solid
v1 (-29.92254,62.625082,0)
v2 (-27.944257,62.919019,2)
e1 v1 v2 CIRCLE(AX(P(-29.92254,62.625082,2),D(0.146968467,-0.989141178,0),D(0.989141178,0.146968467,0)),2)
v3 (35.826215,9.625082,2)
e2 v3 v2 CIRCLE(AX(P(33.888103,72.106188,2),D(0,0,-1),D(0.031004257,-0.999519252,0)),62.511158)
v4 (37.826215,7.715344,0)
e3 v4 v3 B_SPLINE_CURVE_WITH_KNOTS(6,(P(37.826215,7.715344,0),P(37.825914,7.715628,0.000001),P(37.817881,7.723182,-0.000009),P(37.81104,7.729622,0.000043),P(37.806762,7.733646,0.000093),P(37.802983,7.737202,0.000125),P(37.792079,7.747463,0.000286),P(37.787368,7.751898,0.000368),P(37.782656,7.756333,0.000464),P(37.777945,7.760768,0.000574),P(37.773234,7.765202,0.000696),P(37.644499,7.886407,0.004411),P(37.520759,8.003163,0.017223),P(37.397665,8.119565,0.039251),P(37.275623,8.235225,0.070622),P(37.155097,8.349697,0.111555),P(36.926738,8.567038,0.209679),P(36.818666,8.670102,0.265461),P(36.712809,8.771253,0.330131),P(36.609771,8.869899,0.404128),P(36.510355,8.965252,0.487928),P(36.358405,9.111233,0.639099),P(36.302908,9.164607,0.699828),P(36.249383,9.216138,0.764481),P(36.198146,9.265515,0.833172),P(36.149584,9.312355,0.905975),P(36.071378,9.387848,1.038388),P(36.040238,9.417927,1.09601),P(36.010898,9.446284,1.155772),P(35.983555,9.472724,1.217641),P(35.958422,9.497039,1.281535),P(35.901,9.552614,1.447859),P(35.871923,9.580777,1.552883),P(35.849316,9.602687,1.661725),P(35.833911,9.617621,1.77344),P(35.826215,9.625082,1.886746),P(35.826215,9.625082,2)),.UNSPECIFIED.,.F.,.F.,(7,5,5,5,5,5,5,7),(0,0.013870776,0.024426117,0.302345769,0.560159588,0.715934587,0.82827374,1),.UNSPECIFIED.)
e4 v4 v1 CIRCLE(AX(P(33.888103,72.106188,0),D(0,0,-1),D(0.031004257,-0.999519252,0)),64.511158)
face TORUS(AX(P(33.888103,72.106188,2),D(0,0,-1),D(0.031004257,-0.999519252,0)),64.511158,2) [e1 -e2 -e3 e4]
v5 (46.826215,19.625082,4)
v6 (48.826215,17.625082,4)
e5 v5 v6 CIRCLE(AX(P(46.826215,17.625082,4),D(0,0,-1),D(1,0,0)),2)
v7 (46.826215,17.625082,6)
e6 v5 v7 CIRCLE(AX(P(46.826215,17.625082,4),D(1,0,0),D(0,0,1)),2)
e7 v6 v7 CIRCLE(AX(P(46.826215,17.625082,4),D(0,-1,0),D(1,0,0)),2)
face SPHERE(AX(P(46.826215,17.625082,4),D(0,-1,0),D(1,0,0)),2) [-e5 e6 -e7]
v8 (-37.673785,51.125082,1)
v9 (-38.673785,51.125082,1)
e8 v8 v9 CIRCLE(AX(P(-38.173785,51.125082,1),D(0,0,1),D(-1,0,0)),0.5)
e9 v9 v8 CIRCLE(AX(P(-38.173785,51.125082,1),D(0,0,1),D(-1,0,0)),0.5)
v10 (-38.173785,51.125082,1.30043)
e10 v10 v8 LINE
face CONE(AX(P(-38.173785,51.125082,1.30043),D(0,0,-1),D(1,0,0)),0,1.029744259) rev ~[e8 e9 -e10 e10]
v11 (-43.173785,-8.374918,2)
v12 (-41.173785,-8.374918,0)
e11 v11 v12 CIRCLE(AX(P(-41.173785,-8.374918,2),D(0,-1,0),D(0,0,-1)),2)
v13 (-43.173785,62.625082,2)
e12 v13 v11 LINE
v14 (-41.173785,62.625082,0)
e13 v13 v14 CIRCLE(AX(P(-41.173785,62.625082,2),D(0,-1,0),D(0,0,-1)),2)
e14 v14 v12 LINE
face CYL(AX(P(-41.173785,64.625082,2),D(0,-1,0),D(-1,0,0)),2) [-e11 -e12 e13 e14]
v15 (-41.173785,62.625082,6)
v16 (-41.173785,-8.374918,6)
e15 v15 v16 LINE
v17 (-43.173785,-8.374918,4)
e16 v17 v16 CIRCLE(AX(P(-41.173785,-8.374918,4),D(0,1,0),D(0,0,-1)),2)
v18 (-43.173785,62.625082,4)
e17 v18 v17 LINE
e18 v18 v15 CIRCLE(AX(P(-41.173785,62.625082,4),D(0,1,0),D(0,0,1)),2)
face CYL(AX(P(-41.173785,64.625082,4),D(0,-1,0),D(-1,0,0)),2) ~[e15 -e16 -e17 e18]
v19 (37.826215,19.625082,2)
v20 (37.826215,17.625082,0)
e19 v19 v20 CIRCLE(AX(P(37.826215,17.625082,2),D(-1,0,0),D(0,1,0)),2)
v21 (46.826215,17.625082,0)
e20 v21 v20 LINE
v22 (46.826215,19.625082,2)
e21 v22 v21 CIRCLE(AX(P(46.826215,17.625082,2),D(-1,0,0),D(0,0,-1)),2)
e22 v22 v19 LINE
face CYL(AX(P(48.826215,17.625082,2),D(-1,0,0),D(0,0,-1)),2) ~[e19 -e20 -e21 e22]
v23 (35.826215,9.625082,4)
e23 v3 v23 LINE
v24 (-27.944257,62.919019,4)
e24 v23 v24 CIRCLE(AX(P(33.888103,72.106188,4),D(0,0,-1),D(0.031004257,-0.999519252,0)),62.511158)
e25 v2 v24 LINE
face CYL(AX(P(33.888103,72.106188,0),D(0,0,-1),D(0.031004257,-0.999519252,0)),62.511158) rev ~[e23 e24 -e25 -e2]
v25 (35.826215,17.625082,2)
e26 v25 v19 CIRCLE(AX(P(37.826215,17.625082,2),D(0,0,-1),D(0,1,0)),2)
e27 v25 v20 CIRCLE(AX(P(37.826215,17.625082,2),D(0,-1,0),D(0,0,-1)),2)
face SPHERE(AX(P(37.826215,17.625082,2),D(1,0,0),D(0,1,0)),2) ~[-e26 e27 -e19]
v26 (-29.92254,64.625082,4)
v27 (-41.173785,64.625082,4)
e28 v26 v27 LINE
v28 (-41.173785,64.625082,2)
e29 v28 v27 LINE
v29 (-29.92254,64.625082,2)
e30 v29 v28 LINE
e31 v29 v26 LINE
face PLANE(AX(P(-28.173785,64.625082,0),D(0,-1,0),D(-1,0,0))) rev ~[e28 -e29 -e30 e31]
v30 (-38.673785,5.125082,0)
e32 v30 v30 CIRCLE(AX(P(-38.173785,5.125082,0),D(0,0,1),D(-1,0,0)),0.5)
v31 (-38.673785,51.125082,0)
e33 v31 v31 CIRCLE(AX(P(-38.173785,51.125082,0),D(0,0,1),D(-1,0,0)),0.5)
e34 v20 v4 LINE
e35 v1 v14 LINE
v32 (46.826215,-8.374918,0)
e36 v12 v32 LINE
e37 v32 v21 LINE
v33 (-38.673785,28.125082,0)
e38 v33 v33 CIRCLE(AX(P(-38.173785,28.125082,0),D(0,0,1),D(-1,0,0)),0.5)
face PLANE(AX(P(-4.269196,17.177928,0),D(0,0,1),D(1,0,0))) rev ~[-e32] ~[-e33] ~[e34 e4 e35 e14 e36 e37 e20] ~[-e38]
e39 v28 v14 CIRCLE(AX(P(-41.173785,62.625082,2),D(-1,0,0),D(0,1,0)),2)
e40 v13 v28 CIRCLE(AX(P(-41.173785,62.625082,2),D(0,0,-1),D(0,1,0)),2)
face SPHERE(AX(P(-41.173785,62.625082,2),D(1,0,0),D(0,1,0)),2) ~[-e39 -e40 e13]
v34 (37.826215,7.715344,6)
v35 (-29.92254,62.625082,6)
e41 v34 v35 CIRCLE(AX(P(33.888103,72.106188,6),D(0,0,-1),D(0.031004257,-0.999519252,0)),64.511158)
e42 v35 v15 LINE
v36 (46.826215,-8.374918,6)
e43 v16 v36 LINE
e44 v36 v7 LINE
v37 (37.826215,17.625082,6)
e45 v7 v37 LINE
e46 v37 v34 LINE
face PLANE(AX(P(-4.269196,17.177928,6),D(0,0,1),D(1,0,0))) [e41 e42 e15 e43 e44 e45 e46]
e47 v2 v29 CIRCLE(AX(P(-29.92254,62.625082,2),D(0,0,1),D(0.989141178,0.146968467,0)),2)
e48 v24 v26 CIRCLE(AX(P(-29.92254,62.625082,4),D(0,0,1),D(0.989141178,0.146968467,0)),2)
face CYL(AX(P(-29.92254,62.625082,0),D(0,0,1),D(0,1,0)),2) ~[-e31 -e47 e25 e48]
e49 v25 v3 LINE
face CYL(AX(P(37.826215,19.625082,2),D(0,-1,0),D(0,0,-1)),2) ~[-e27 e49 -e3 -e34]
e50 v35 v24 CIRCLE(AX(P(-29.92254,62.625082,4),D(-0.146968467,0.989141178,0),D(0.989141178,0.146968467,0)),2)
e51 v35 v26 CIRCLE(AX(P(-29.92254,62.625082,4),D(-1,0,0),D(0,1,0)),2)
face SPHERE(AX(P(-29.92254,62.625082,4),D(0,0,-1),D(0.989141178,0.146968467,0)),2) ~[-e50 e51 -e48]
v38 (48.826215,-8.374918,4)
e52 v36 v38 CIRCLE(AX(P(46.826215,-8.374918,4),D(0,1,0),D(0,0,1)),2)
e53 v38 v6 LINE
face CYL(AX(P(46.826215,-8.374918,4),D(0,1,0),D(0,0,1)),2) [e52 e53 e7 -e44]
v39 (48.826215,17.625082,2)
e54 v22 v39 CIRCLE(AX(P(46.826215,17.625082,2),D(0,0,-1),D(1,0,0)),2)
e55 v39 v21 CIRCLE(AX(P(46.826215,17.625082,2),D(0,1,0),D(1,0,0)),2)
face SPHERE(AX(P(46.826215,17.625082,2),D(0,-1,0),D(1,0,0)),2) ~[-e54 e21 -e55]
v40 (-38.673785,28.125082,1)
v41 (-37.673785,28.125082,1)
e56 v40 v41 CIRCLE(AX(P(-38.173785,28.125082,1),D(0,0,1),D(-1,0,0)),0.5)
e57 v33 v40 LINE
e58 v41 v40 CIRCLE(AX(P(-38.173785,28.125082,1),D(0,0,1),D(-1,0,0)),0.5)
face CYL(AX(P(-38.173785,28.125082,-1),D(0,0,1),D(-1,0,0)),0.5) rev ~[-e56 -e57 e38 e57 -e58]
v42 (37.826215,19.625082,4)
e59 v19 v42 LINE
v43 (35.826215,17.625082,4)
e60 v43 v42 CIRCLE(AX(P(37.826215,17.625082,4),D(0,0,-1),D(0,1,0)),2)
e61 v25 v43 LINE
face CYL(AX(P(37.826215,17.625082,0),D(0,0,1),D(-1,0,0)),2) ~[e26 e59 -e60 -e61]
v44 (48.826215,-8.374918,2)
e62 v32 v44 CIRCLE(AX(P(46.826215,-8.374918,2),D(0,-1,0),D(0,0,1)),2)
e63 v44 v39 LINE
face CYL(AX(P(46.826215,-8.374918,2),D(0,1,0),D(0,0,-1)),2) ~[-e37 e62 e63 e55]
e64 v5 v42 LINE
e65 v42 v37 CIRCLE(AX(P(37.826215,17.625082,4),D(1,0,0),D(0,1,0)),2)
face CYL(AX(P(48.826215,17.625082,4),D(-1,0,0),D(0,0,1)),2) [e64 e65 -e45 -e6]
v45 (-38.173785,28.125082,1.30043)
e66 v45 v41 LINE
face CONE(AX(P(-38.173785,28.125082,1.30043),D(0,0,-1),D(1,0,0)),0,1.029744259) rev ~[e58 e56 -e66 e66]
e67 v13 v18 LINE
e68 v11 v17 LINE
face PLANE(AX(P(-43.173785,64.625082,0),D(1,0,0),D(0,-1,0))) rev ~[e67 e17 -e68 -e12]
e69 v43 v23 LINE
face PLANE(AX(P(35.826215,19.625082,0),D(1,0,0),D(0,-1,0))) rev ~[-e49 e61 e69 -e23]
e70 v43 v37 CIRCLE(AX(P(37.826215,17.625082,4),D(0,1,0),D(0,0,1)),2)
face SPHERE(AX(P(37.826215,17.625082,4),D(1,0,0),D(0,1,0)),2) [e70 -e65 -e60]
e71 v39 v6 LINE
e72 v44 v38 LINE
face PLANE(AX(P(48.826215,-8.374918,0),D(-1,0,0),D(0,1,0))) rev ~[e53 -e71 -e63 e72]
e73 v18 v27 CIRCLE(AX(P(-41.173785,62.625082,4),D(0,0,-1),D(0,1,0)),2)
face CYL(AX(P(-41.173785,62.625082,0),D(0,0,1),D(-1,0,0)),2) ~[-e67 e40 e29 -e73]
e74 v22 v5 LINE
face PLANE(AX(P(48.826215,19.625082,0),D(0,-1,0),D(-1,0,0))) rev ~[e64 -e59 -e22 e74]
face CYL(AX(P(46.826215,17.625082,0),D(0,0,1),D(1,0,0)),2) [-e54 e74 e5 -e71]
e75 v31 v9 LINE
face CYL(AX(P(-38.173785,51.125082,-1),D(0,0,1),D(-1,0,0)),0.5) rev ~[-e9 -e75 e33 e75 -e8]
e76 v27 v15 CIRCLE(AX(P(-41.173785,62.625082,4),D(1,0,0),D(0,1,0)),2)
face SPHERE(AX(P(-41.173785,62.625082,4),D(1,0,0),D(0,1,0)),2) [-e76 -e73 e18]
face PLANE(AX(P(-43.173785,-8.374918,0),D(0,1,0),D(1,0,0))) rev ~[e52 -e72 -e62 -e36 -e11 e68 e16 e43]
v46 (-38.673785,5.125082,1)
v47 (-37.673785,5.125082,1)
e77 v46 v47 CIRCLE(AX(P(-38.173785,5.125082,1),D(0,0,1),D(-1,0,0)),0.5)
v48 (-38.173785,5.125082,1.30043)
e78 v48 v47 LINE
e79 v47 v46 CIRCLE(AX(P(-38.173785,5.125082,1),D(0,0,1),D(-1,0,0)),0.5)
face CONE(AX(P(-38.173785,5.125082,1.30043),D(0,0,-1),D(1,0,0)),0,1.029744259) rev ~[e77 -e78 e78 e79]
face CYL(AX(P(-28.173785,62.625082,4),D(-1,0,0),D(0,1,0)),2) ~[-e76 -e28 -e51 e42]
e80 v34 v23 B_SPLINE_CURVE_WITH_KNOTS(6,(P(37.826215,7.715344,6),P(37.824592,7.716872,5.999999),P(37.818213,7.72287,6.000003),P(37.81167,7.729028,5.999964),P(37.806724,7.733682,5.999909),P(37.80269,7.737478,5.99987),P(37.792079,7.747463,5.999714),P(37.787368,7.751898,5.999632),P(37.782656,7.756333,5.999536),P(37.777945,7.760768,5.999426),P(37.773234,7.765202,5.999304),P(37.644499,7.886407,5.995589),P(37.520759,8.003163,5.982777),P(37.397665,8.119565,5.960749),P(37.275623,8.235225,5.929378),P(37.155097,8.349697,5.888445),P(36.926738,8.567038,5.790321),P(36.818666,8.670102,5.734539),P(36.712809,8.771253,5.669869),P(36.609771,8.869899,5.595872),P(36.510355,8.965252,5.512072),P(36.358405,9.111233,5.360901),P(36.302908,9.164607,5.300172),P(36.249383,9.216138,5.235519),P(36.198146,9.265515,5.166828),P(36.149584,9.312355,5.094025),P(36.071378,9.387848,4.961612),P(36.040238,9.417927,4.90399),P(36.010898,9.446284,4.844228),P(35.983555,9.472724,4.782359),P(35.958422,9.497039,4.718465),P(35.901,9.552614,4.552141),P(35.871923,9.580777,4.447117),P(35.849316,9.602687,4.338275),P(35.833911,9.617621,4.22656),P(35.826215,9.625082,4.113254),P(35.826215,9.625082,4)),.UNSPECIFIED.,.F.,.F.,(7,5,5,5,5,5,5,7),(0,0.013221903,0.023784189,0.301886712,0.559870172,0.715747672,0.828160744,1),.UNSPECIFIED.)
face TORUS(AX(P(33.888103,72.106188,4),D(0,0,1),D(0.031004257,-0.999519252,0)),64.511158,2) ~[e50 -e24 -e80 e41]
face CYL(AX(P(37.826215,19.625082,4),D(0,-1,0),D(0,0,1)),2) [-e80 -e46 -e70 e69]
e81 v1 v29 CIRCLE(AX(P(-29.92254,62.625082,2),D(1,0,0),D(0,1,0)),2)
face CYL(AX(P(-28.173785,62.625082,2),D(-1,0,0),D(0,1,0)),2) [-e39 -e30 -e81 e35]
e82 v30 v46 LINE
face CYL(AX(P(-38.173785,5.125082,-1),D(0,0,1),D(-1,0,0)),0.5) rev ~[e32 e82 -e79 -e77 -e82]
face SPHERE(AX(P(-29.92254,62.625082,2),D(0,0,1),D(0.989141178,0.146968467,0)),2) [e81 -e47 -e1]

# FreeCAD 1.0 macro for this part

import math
import FreeCAD as App
import Part
import Sketcher
Q = App.Units.Quantity


def edges_at(feature, points):
    """Names of the edges that pass closest to the given points."""
    edges = feature.Shape.Edges
    near = lambda p: min(range(len(edges)), key=lambda i: edges[i].distToShape(Part.Vertex(*p))[0])
    return sorted({f"Edge{near(p) + 1}" for p in points})

doc = App.newDocument("Part")
body = doc.addObject("PartDesign::Body", "Body")

# Sketch on XY plane
sketch1 = body.newObject("Sketcher::SketchObject", "Sketch")
sketch1.AttachmentSupport = (doc.getObject("XY_Plane"), [""])
sketch1.MapMode = "FlatFace"
sketch1.addGeometry([
    Part.LineSegment(App.Vector(-43, 65, 0), App.Vector(-43, -8, 0)),  # 0
    Part.LineSegment(App.Vector(-43, -8, 0), App.Vector(49, -8, 0)),  # 1
    Part.LineSegment(App.Vector(49, -8, 0), App.Vector(49, 20, 0)),  # 2
    Part.LineSegment(App.Vector(49, 20, 0), App.Vector(36, 20, 0)),  # 3
    Part.LineSegment(App.Vector(36, 20, 0), App.Vector(36, 10, 0)),  # 4
    Part.ArcOfCircle(Part.Circle(App.Vector(34, 72, 0), App.Vector(0, 0, 1), 63), math.radians(-173), math.radians(-88)),  # 5
    Part.LineSegment(App.Vector(-28, 65, 0), App.Vector(-43, 65, 0)),  # 6
], False)
sketch1.addConstraint([
    Sketcher.Constraint("Coincident", 0, 2, 1, 1),
    Sketcher.Constraint("Coincident", 1, 2, 2, 1),
    Sketcher.Constraint("Coincident", 2, 2, 3, 1),
    Sketcher.Constraint("Coincident", 3, 2, 4, 1),
    Sketcher.Constraint("Coincident", 4, 2, 5, 2),
    Sketcher.Constraint("Coincident", 5, 1, 6, 1),
    Sketcher.Constraint("Coincident", 6, 2, 0, 1),
    Sketcher.Constraint("Vertical", 0),
    Sketcher.Constraint("Horizontal", 1),
    Sketcher.Constraint("Vertical", 2),
    Sketcher.Constraint("Horizontal", 3),
    Sketcher.Constraint("Vertical", 4),
    Sketcher.Constraint("Horizontal", 6),
    Sketcher.Constraint("DistanceX", 1, 1, 1, 2, Q("92 mm")),
    Sketcher.Constraint("DistanceX", 3, 2, 3, 1, Q("13 mm")),
    Sketcher.Constraint("DistanceX", 6, 2, 6, 1, Q("15 mm")),
    Sketcher.Constraint("DistanceY", 0, 2, 0, 1, Q("73 mm")),
    Sketcher.Constraint("DistanceY", 2, 1, 2, 2, Q("28 mm")),
    Sketcher.Constraint("DistanceY", 4, 2, 4, 1, Q("10 mm")),
    Sketcher.Constraint("Radius", 5, Q("62.511158 mm")),
    Sketcher.Constraint("DistanceY", 0, 2, -1, 1, Q("8.374918 mm")),
    Sketcher.Constraint("DistanceX", -1, 1, 5, 3, Q("33.888103 mm")),
])
pad1 = body.newObject("PartDesign::Pad", "Pad")
pad1.Profile = sketch1
pad1.Length = 6

# Sketch on XY plane
sketch2 = body.newObject("Sketcher::SketchObject", "Sketch001")
sketch2.AttachmentSupport = (doc.getObject("XY_Plane"), [""])
sketch2.MapMode = "FlatFace"
sketch2.addGeometry([
    Part.Circle(App.Vector(-38.2, 5.1, 0), App.Vector(0, 0, 1), 0.5),
    Part.Circle(App.Vector(-38.2, 28.1, 0), App.Vector(0, 0, 1), 0.5),
    Part.Circle(App.Vector(-38.2, 51.1, 0), App.Vector(0, 0, 1), 0.5),
], False)
sketch2.addConstraint([
    Sketcher.Constraint("Equal", 0, 1),
    Sketcher.Constraint("Equal", 1, 2),
    Sketcher.Constraint("Vertical", 0, 3, 1, 3),
    Sketcher.Constraint("Vertical", 1, 3, 2, 3),
    Sketcher.Constraint("Diameter", 0, Q("1 mm")),
    Sketcher.Constraint("DistanceY", 0, 3, 1, 3, Q("23 mm")),
    Sketcher.Constraint("DistanceY", 1, 3, 2, 3, Q("23 mm")),
    Sketcher.Constraint("DistanceY", -1, 1, 0, 3, Q("5.125082 mm")),
    Sketcher.Constraint("DistanceX", 0, 3, -1, 1, Q("38.173785 mm")),
])
doc.recompute()
hole = body.newObject("PartDesign::Hole", "Hole")
hole.Profile = sketch2
hole.ThreadType = "None"
hole.Diameter = 1
hole.DepthType = "Dimension"
hole.Depth = 1
hole.DrillPoint = "Angled"
hole.DrillPointAngle = 118
hole.Reversed = True
doc.recompute()

fillet = body.newObject("PartDesign::Fillet", "Fillet")
fillet.Base = (hole, edges_at(hole, [
    (48.826, 5.625, 6),
    (48.826, 5.625, 0),
    (48.826, 19.625, 3),
    (42.326, 19.625, 0),
    (42.326, 19.625, 6),
    (35.826, 19.625, 3),
    (35.826, 14.625, 6),
    (35.826, 14.625, 0),
    (-6.855, 24.697, 0),
    (-6.855, 24.697, 6),
    (-35.674, 64.625, 0),
    (-35.674, 64.625, 6),
    (-43.174, 64.625, 3),
    (-43.174, 28.125, 0),
    (-43.174, 28.125, 6),
    (-28.174, 64.625, 3),
]))
fillet.Radius = 2

doc.recompute()
